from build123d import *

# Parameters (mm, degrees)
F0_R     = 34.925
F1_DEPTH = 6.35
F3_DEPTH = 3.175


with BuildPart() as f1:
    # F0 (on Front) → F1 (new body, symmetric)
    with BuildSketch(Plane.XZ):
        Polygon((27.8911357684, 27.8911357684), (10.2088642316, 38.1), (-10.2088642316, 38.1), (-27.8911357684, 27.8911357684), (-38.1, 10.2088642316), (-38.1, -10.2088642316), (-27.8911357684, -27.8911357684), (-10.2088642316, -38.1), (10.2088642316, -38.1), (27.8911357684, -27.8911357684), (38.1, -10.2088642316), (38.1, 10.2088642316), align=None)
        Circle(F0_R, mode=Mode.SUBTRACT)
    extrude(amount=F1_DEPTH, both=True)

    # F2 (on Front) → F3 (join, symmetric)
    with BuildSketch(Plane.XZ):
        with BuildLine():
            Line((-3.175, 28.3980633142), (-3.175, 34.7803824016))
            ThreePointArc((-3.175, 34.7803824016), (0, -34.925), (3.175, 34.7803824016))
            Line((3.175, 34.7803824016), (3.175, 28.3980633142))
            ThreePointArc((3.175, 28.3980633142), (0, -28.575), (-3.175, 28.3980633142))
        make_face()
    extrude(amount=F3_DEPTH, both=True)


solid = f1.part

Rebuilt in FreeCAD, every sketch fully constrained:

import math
import FreeCAD as App
import Part
import Sketcher
Q = App.Units.Quantity


def add_polygon(sketch, points):
    """Adds a closed chain of lines whose ends are joined by coincident constraints."""
    first, n = sketch.GeometryCount, len(points)
    for a, b in zip(points, points[1:] + points[:1]):
        sketch.addGeometry(Part.LineSegment(App.Vector(*a, 0), App.Vector(*b, 0)), False)
    for i in range(n):
        sketch.addConstraint(Sketcher.Constraint("Coincident", first + i, 2, first + (i + 1) % n, 1))

doc = App.newDocument("Part")
body = doc.addObject("PartDesign::Body", "Body")

sketch1 = body.newObject("Sketcher::SketchObject", "Sketch")
sketch1.AttachmentSupport = (doc.getObject("XZ_Plane"), [""])
sketch1.MapMode = "FlatFace"
add_polygon(sketch1, [(27.891136, 27.891136), (10.208864, 38.1), (-10.208864, 38.1), (-27.891136, 27.891136), (-38.1, 10.208864), (-38.1, -10.208864), (-27.891136, -27.891136), (-10.208864, -38.1), (10.208864, -38.1), (27.891136, -27.891136), (38.1, -10.208864), (38.1, 10.208864)])
sketch1.addGeometry(Part.Circle(App.Vector(0, 0, 0), App.Vector(0, 0, 1), 34.925), False)
sketch1.addConstraint(Sketcher.Constraint("Horizontal", 1))
sketch1.addConstraint(Sketcher.Constraint("Vertical", 4))
sketch1.addConstraint(Sketcher.Constraint("Horizontal", 7))
sketch1.addConstraint(Sketcher.Constraint("Vertical", 10))
sketch1.addConstraint(Sketcher.Constraint("Coincident", 12, 3, -1, 1))
sketch1.addConstraint(Sketcher.Constraint("Symmetric", 0, 2, 6, 2, -1, 1))
sketch1.addConstraint(Sketcher.Constraint("Symmetric", 2, 2, 8, 2, -1, 1))
sketch1.addConstraint(Sketcher.Constraint("Symmetric", 3, 2, 9, 2, -1, 1))
sketch1.addConstraint(Sketcher.Constraint("Symmetric", 5, 2, 11, 2, -1, 1))
sketch1.addConstraint(Sketcher.Constraint("Symmetric", 5, 2, 8, 2, -2))
sketch1.addConstraint(Sketcher.Constraint("Perpendicular", 0, 3))
sketch1.addConstraint(Sketcher.Constraint("Perpendicular", 2, 5))
sketch1.addConstraint(Sketcher.Constraint("Perpendicular", 5, 8))
sketch1.addConstraint(Sketcher.Constraint("Perpendicular", 8, 11))
sketch1.addConstraint(Sketcher.Constraint("Horizontal", 4, 2, 9, 2))
sketch1.addConstraint(Sketcher.Constraint("Equal", 7, 4))
sketch1.addConstraint(Sketcher.Constraint("Equal", 2, 3))
sketch1.addConstraint(Sketcher.Constraint("Diameter", 12, Q("2.75 in")))
sketch1.addConstraint(Sketcher.Constraint("Angle", 0, Q("150 deg")))
sketch1.addConstraint(Sketcher.Constraint("DistanceY", -1, 1, 0, 2, Q("1.5 in")))
sketch1.addConstraint(Sketcher.Constraint("DistanceX", 2, 2, 0, 2, Q("1.5 in")))
pad1 = body.newObject("PartDesign::Pad", "Pad")
pad1.Profile = sketch1
pad1.Length = Q("0.5 in")
pad1.Midplane = True

sketch2 = body.newObject("Sketcher::SketchObject", "Sketch001")
sketch2.AttachmentSupport = (doc.getObject("XZ_Plane"), [""])
sketch2.MapMode = "FlatFace"
sketch2.addGeometry(Part.LineSegment(App.Vector(-3.175, 28.398063, 0), App.Vector(-3.175, 34.780382, 0)), False)
sketch2.addGeometry(Part.ArcOfCircle(Part.Circle(App.Vector(0, 0, 0), App.Vector(0, 0, 1), 34.925), math.radians(95.215909), math.radians(444.784091)), False)
sketch2.addGeometry(Part.LineSegment(App.Vector(3.175, 34.780382, 0), App.Vector(3.175, 28.398063, 0)), False)
sketch2.addGeometry(Part.ArcOfCircle(Part.Circle(App.Vector(0, 0, 0), App.Vector(0, 0, 1), 28.575), math.radians(96.37937), math.radians(443.62063)), False)
sketch2.addConstraint(Sketcher.Constraint("Coincident", 0, 2, 1, 1))
sketch2.addConstraint(Sketcher.Constraint("Coincident", 1, 2, 2, 1))
sketch2.addConstraint(Sketcher.Constraint("Coincident", 2, 2, 3, 2))
sketch2.addConstraint(Sketcher.Constraint("Coincident", 3, 1, 0, 1))
sketch2.addConstraint(Sketcher.Constraint("Vertical", 0))
sketch2.addConstraint(Sketcher.Constraint("Vertical", 2))
sketch2.addConstraint(Sketcher.Constraint("Coincident", 1, 3, -1, 1))
sketch2.addConstraint(Sketcher.Constraint("Coincident", 3, 3, -1, 1))
sketch2.addConstraint(Sketcher.Constraint("Horizontal", 0, 2, 1, 2))
sketch2.addConstraint(Sketcher.Constraint("Radius", 1, Q("1.375 in")))
sketch2.addConstraint(Sketcher.Constraint("Radius", 3, Q("1.125 in")))
sketch2.addConstraint(Sketcher.Constraint("DistanceX", 0, 2, 1, 2, Q("0.25 in")))
pad2 = body.newObject("PartDesign::Pad", "Pad001")
pad2.Profile = sketch2
pad2.Length = Q("0.25 in")
pad2.Midplane = True

doc.recompute()
